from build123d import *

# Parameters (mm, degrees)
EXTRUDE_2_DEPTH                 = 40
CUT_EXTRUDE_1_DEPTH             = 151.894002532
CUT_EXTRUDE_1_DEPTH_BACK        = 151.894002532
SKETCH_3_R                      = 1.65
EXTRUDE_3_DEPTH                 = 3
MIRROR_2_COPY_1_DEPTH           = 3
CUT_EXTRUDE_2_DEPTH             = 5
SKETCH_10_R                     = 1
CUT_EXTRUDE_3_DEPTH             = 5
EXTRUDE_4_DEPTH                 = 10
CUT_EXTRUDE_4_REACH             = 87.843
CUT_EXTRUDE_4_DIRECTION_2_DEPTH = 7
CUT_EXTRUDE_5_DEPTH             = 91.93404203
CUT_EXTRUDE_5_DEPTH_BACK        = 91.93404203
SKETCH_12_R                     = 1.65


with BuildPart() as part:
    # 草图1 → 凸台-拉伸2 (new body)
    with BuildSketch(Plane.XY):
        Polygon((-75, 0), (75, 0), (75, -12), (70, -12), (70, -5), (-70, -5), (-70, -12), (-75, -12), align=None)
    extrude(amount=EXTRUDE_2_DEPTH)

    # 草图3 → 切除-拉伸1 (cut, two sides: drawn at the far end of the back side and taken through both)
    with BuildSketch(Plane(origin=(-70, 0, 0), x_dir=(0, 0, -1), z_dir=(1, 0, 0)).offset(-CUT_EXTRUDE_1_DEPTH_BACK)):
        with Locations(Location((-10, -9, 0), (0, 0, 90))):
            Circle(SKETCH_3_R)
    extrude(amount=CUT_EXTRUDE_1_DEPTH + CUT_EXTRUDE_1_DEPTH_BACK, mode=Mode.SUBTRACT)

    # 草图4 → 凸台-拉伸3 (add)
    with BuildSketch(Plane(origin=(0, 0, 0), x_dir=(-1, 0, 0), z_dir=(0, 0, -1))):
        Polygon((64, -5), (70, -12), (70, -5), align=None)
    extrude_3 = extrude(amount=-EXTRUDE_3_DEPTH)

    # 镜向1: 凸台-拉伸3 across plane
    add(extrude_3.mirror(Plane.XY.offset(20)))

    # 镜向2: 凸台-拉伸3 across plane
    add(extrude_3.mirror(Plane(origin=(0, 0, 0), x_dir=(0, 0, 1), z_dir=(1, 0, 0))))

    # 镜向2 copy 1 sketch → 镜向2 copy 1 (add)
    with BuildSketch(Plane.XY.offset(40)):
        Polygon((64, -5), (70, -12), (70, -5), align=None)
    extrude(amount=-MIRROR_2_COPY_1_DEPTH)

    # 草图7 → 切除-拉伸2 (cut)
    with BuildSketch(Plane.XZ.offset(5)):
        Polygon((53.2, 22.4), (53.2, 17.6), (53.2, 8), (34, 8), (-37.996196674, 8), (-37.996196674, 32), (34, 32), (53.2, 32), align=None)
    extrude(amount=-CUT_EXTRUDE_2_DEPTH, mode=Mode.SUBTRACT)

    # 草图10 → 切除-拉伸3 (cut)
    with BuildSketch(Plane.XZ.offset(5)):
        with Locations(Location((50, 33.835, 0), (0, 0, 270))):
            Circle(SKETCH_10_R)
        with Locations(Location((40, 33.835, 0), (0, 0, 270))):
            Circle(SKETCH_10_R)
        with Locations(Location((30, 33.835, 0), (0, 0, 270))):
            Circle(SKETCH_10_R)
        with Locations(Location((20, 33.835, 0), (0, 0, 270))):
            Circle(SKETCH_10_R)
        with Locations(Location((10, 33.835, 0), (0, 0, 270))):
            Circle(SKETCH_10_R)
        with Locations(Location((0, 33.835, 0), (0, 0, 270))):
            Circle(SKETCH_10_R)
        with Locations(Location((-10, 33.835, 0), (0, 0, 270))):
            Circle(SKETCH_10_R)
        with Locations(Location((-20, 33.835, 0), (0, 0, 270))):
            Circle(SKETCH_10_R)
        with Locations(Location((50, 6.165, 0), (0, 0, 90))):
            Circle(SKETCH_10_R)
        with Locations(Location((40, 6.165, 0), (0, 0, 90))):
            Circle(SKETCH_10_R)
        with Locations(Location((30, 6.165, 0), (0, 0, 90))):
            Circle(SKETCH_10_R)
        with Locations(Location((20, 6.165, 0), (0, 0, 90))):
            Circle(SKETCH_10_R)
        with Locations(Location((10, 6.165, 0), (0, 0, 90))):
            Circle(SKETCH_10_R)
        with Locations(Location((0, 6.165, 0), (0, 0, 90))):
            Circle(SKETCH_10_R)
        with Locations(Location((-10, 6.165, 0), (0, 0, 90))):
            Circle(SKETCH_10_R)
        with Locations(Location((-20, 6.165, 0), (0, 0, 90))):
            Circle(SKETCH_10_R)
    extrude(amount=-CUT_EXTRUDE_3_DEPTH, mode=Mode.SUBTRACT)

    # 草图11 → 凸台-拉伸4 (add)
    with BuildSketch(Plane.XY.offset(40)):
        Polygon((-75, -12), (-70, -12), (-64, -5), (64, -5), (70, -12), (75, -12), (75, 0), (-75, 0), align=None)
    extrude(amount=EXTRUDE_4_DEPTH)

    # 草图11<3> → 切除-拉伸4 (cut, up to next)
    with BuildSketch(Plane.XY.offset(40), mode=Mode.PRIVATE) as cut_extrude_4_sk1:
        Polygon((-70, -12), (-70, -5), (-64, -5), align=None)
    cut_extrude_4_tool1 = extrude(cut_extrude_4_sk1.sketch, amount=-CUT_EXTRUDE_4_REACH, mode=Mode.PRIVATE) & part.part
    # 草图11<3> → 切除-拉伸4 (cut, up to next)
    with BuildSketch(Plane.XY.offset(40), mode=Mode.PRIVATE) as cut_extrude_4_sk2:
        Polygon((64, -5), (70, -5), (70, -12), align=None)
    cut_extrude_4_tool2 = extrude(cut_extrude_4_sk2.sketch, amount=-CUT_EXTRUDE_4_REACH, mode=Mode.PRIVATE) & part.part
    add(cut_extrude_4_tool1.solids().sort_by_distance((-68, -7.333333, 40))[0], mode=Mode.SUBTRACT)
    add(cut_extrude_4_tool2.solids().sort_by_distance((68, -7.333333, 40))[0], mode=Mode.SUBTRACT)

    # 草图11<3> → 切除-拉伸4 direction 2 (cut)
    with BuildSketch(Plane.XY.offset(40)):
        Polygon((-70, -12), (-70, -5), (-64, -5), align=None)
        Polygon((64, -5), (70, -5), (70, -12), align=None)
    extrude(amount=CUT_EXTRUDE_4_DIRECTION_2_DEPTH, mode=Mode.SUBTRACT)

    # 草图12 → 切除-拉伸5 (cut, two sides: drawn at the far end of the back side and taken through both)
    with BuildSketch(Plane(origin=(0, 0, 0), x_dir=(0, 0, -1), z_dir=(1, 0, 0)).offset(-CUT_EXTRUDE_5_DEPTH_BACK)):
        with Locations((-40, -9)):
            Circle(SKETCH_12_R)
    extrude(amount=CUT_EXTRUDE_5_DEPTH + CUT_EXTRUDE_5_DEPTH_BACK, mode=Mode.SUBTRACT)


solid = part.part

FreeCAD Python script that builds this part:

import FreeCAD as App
import Part
import Sketcher
Q = App.Units.Quantity

doc = App.newDocument("Part")
body = doc.addObject("PartDesign::Body", "Body")

# Sketch on XY plane
sketch1 = body.newObject("Sketcher::SketchObject", "Sketch")
sketch1.AttachmentSupport = (doc.getObject("XY_Plane"), [""])
sketch1.MapMode = "FlatFace"
sketch1.addGeometry(Part.LineSegment(App.Vector(75, 0, 0), App.Vector(-75, 0, 0)), False)
sketch1.addGeometry(Part.LineSegment(App.Vector(-75, 0, 0), App.Vector(-75, -12, 0)), False)
sketch1.addGeometry(Part.LineSegment(App.Vector(-75, -12, 0), App.Vector(-70, -12, 0)), False)
sketch1.addGeometry(Part.LineSegment(App.Vector(-70, -12, 0), App.Vector(-70, -5, 0)), False)
sketch1.addGeometry(Part.LineSegment(App.Vector(-70, -5, 0), App.Vector(70, -5, 0)), False)
sketch1.addGeometry(Part.LineSegment(App.Vector(70, -5, 0), App.Vector(70, -12, 0)), False)
sketch1.addGeometry(Part.LineSegment(App.Vector(70, -12, 0), App.Vector(75, -12, 0)), False)
sketch1.addGeometry(Part.LineSegment(App.Vector(75, -12, 0), App.Vector(75, 0, 0)), False)
sketch1.addConstraint(Sketcher.Constraint("Coincident", 0, 2, 1, 1))
sketch1.addConstraint(Sketcher.Constraint("Coincident", 1, 2, 2, 1))
sketch1.addConstraint(Sketcher.Constraint("Coincident", 2, 2, 3, 1))
sketch1.addConstraint(Sketcher.Constraint("Coincident", 3, 2, 4, 1))
sketch1.addConstraint(Sketcher.Constraint("Coincident", 4, 2, 5, 1))
sketch1.addConstraint(Sketcher.Constraint("Coincident", 5, 2, 6, 1))
sketch1.addConstraint(Sketcher.Constraint("Coincident", 6, 2, 7, 1))
sketch1.addConstraint(Sketcher.Constraint("Coincident", 7, 2, 0, 1))
sketch1.addConstraint(Sketcher.Constraint("Horizontal", 0))
sketch1.addConstraint(Sketcher.Constraint("Vertical", 1))
sketch1.addConstraint(Sketcher.Constraint("Horizontal", 2))
sketch1.addConstraint(Sketcher.Constraint("Vertical", 3))
sketch1.addConstraint(Sketcher.Constraint("Horizontal", 4))
sketch1.addConstraint(Sketcher.Constraint("Vertical", 5))
sketch1.addConstraint(Sketcher.Constraint("Horizontal", 6))
sketch1.addConstraint(Sketcher.Constraint("Vertical", 7))
sketch1.addConstraint(Sketcher.Constraint("Symmetric", 0, 2, 7, 2, -1, 1))
sketch1.addConstraint(Sketcher.Constraint("Symmetric", 2, 2, 5, 2, -2))
sketch1.addConstraint(Sketcher.Constraint("DistanceX", 0, 2, 0, 1, Q("150 mm")))
sketch1.addConstraint(Sketcher.Constraint("DistanceX", 2, 1, 2, 2, Q("5 mm")))
sketch1.addConstraint(Sketcher.Constraint("DistanceY", 1, 2, 1, 1, Q("12 mm")))
sketch1.addConstraint(Sketcher.Constraint("DistanceY", 3, 1, 3, 2, Q("7 mm")))
pad1 = body.newObject("PartDesign::Pad", "Pad")
pad1.Profile = sketch1
pad1.Length = 40

# Sketch on YZ plane
sketch2 = body.newObject("Sketcher::SketchObject", "Sketch001")
sketch2.AttachmentSupport = (doc.getObject("YZ_Plane"), [""])
sketch2.MapMode = "FlatFace"
sketch2.AttachmentOffset = App.Placement(App.Vector(0, 0, -70), App.Rotation())
sketch2.addGeometry(Part.Circle(App.Vector(-9, 10, 0), App.Vector(0, 0, 1), 1.6), False)
sketch2.addConstraint(Sketcher.Constraint("Diameter", 0, Q("3.3 mm")))
sketch2.addConstraint(Sketcher.Constraint("DistanceX", 0, 3, -1, 1, Q("9 mm")))
sketch2.addConstraint(Sketcher.Constraint("DistanceY", -1, 1, 0, 3, Q("10 mm")))
pocket1 = body.newObject("PartDesign::Pocket", "Pocket")
pocket1.Profile = sketch2
pocket1.Type = "ThroughAll"
pocket1.Midplane = True

# Sketch on XY plane
sketch3 = body.newObject("Sketcher::SketchObject", "Sketch002")
sketch3.AttachmentSupport = (doc.getObject("XY_Plane"), [""])
sketch3.MapMode = "FlatFace"
sketch3.addGeometry(Part.LineSegment(App.Vector(-64, -5, 0), App.Vector(-70, -12, 0)), False)
sketch3.addGeometry(Part.LineSegment(App.Vector(-70, -12, 0), App.Vector(-70, -5, 0)), False)
sketch3.addGeometry(Part.LineSegment(App.Vector(-70, -5, 0), App.Vector(-64, -5, 0)), False)
sketch3.addConstraint(Sketcher.Constraint("Coincident", 0, 2, 1, 1))
sketch3.addConstraint(Sketcher.Constraint("Coincident", 1, 2, 2, 1))
sketch3.addConstraint(Sketcher.Constraint("Coincident", 2, 2, 0, 1))
sketch3.addConstraint(Sketcher.Constraint("Vertical", 1))
sketch3.addConstraint(Sketcher.Constraint("Horizontal", 2))
sketch3.addConstraint(Sketcher.Constraint("DistanceX", 2, 1, 2, 2, Q("6 mm")))
sketch3.addConstraint(Sketcher.Constraint("DistanceY", 1, 1, 1, 2, Q("7 mm")))
sketch3.addConstraint(Sketcher.Constraint("DistanceX", 0, 2, -1, 1, Q("70 mm")))
sketch3.addConstraint(Sketcher.Constraint("DistanceY", 0, 2, -1, 1, Q("12 mm")))
pad2 = body.newObject("PartDesign::Pad", "Pad001")
pad2.Profile = sketch3
pad2.Length = 3
doc.recompute()

datumplane = body.newObject("PartDesign::Plane", "DatumPlane")
datumplane.AttachmentSupport = (doc.getObject("XY_Plane"), [""])
datumplane.MapMode = "FlatFace"
datumplane.AttachmentOffset = App.Placement(App.Vector(0, 0, 20), App.Rotation())
mirrored = body.newObject("PartDesign::Mirrored", "Mirrored")
mirrored.Originals = [pad2]
mirrored.MirrorPlane = (datumplane, [""])
body.Tip = mirrored
doc.recompute()

mirrored2 = body.newObject("PartDesign::Mirrored", "Mirrored001")
mirrored2.Originals = [pad2]
mirrored2.MirrorPlane = (doc.getObject("YZ_Plane"), [""])
body.Tip = mirrored2

# Sketch on XY plane
sketch4 = body.newObject("Sketcher::SketchObject", "Sketch003")
sketch4.AttachmentSupport = (doc.getObject("XY_Plane"), [""])
sketch4.MapMode = "FlatFace"
sketch4.AttachmentOffset = App.Placement(App.Vector(0, 0, 40), App.Rotation())
sketch4.addGeometry(Part.LineSegment(App.Vector(64, -5, 0), App.Vector(70, -12, 0)), False)
sketch4.addGeometry(Part.LineSegment(App.Vector(70, -12, 0), App.Vector(70, -5, 0)), False)
sketch4.addGeometry(Part.LineSegment(App.Vector(70, -5, 0), App.Vector(64, -5, 0)), False)
sketch4.addConstraint(Sketcher.Constraint("Coincident", 0, 2, 1, 1))
sketch4.addConstraint(Sketcher.Constraint("Coincident", 1, 2, 2, 1))
sketch4.addConstraint(Sketcher.Constraint("Coincident", 2, 2, 0, 1))
sketch4.addConstraint(Sketcher.Constraint("Vertical", 1))
sketch4.addConstraint(Sketcher.Constraint("Horizontal", 2))
sketch4.addConstraint(Sketcher.Constraint("DistanceX", 2, 2, 2, 1, Q("6 mm")))
sketch4.addConstraint(Sketcher.Constraint("DistanceY", 1, 1, 1, 2, Q("7 mm")))
sketch4.addConstraint(Sketcher.Constraint("DistanceX", -1, 1, 0, 2, Q("70 mm")))
sketch4.addConstraint(Sketcher.Constraint("DistanceY", 0, 2, -1, 1, Q("12 mm")))
pad3 = body.newObject("PartDesign::Pad", "Pad002")
pad3.Profile = sketch4
pad3.Length = 3
pad3.Reversed = True

# Sketch on XZ plane
sketch5 = body.newObject("Sketcher::SketchObject", "Sketch004")
sketch5.AttachmentSupport = (doc.getObject("XZ_Plane"), [""])
sketch5.MapMode = "FlatFace"
sketch5.AttachmentOffset = App.Placement(App.Vector(0, 0, 5), App.Rotation())
sketch5.addGeometry(Part.LineSegment(App.Vector(53, 8, 0), App.Vector(53, 32, 0)), False)
sketch5.addGeometry(Part.LineSegment(App.Vector(53, 32, 0), App.Vector(-38, 32, 0)), False)
sketch5.addGeometry(Part.LineSegment(App.Vector(-38, 32, 0), App.Vector(-38, 8, 0)), False)
sketch5.addGeometry(Part.LineSegment(App.Vector(-38, 8, 0), App.Vector(53, 8, 0)), False)
sketch5.addConstraint(Sketcher.Constraint("Coincident", 0, 2, 1, 1))
sketch5.addConstraint(Sketcher.Constraint("Coincident", 1, 2, 2, 1))
sketch5.addConstraint(Sketcher.Constraint("Coincident", 2, 2, 3, 1))
sketch5.addConstraint(Sketcher.Constraint("Coincident", 3, 2, 0, 1))
sketch5.addConstraint(Sketcher.Constraint("Vertical", 0))
sketch5.addConstraint(Sketcher.Constraint("Horizontal", 1))
sketch5.addConstraint(Sketcher.Constraint("Vertical", 2))
sketch5.addConstraint(Sketcher.Constraint("Horizontal", 3))
sketch5.addConstraint(Sketcher.Constraint("DistanceY", 0, 1, 0, 2, Q("24 mm")))
sketch5.addConstraint(Sketcher.Constraint("DistanceY", -1, 1, 0, 2, Q("32 mm")))
sketch5.addConstraint(Sketcher.Constraint("DistanceX", -1, 1, 0, 2, Q("53.2 mm")))
sketch5.addConstraint(Sketcher.Constraint("DistanceX", 1, 2, 1, 1, Q("91.196197 mm")))
pocket2 = body.newObject("PartDesign::Pocket", "Pocket001")
pocket2.Profile = sketch5
pocket2.Length = 5

# Sketch on XZ plane
sketch6 = body.newObject("Sketcher::SketchObject", "Sketch005")
sketch6.AttachmentSupport = (doc.getObject("XZ_Plane"), [""])
sketch6.MapMode = "FlatFace"
sketch6.AttachmentOffset = App.Placement(App.Vector(0, 0, 5), App.Rotation())
sketch6.addGeometry(Part.Circle(App.Vector(50, 33.8, 0), App.Vector(0, 0, 1), 1), False)
sketch6.addGeometry(Part.Circle(App.Vector(40, 33.8, 0), App.Vector(0, 0, 1), 1), False)
sketch6.addGeometry(Part.Circle(App.Vector(30, 33.8, 0), App.Vector(0, 0, 1), 1), False)
sketch6.addGeometry(Part.Circle(App.Vector(20, 33.8, 0), App.Vector(0, 0, 1), 1), False)
sketch6.addGeometry(Part.Circle(App.Vector(10, 33.8, 0), App.Vector(0, 0, 1), 1), False)
sketch6.addGeometry(Part.Circle(App.Vector(0, 33.8, 0), App.Vector(0, 0, 1), 1), False)
sketch6.addGeometry(Part.Circle(App.Vector(-10, 33.8, 0), App.Vector(0, 0, 1), 1), False)
sketch6.addGeometry(Part.Circle(App.Vector(-20, 33.8, 0), App.Vector(0, 0, 1), 1), False)
sketch6.addGeometry(Part.Circle(App.Vector(50, 6.2, 0), App.Vector(0, 0, 1), 1), False)
sketch6.addGeometry(Part.Circle(App.Vector(40, 6.2, 0), App.Vector(0, 0, 1), 1), False)
sketch6.addGeometry(Part.Circle(App.Vector(30, 6.2, 0), App.Vector(0, 0, 1), 1), False)
sketch6.addGeometry(Part.Circle(App.Vector(20, 6.2, 0), App.Vector(0, 0, 1), 1), False)
sketch6.addGeometry(Part.Circle(App.Vector(10, 6.2, 0), App.Vector(0, 0, 1), 1), False)
sketch6.addGeometry(Part.Circle(App.Vector(0, 6.2, 0), App.Vector(0, 0, 1), 1), False)
sketch6.addGeometry(Part.Circle(App.Vector(-10, 6.2, 0), App.Vector(0, 0, 1), 1), False)
sketch6.addGeometry(Part.Circle(App.Vector(-20, 6.2, 0), App.Vector(0, 0, 1), 1), False)
sketch6.addConstraint(Sketcher.Constraint("Equal", 0, 1))
sketch6.addConstraint(Sketcher.Constraint("Equal", 1, 2))
sketch6.addConstraint(Sketcher.Constraint("Equal", 2, 3))
sketch6.addConstraint(Sketcher.Constraint("Equal", 3, 4))
sketch6.addConstraint(Sketcher.Constraint("Equal", 4, 5))
sketch6.addConstraint(Sketcher.Constraint("Equal", 5, 6))
sketch6.addConstraint(Sketcher.Constraint("Equal", 6, 7))
sketch6.addConstraint(Sketcher.Constraint("Equal", 7, 8))
sketch6.addConstraint(Sketcher.Constraint("Equal", 8, 9))
sketch6.addConstraint(Sketcher.Constraint("Equal", 9, 10))
sketch6.addConstraint(Sketcher.Constraint("Equal", 10, 11))
sketch6.addConstraint(Sketcher.Constraint("Equal", 11, 12))
sketch6.addConstraint(Sketcher.Constraint("Equal", 12, 13))
sketch6.addConstraint(Sketcher.Constraint("Equal", 13, 14))
sketch6.addConstraint(Sketcher.Constraint("Equal", 14, 15))
sketch6.addConstraint(Sketcher.Constraint("Symmetric", 4, 3, 6, 3, -2))
sketch6.addConstraint(Sketcher.Constraint("Symmetric", 3, 3, 7, 3, -2))
sketch6.addConstraint(Sketcher.Constraint("Symmetric", 12, 3, 14, 3, -2))
sketch6.addConstraint(Sketcher.Constraint("Symmetric", 11, 3, 15, 3, -2))
sketch6.addConstraint(Sketcher.Constraint("PointOnObject", 5, 3, -2))
sketch6.addConstraint(Sketcher.Constraint("PointOnObject", 13, 3, -2))
sketch6.addConstraint(Sketcher.Constraint("Horizontal", 0, 3, 1, 3))
sketch6.addConstraint(Sketcher.Constraint("Horizontal", 1, 3, 2, 3))
sketch6.addConstraint(Sketcher.Constraint("Horizontal", 2, 3, 3, 3))
sketch6.addConstraint(Sketcher.Constraint("Horizontal", 3, 3, 4, 3))
sketch6.addConstraint(Sketcher.Constraint("Horizontal", 4, 3, 5, 3))
sketch6.addConstraint(Sketcher.Constraint("Horizontal", 8, 3, 9, 3))
sketch6.addConstraint(Sketcher.Constraint("Horizontal", 9, 3, 10, 3))
sketch6.addConstraint(Sketcher.Constraint("Horizontal", 10, 3, 11, 3))
sketch6.addConstraint(Sketcher.Constraint("Horizontal", 11, 3, 12, 3))
sketch6.addConstraint(Sketcher.Constraint("Horizontal", 12, 3, 13, 3))
sketch6.addConstraint(Sketcher.Constraint("Vertical", 0, 3, 8, 3))
sketch6.addConstraint(Sketcher.Constraint("Vertical", 1, 3, 9, 3))
sketch6.addConstraint(Sketcher.Constraint("Vertical", 2, 3, 10, 3))
sketch6.addConstraint(Sketcher.Constraint("Vertical", 3, 3, 11, 3))
sketch6.addConstraint(Sketcher.Constraint("Vertical", 4, 3, 12, 3))
sketch6.addConstraint(Sketcher.Constraint("Diameter", 0, Q("2 mm")))
sketch6.addConstraint(Sketcher.Constraint("DistanceX", -1, 1, 0, 3, Q("50 mm")))
sketch6.addConstraint(Sketcher.Constraint("DistanceX", -1, 1, 1, 3, Q("40 mm")))
sketch6.addConstraint(Sketcher.Constraint("DistanceX", -1, 1, 2, 3, Q("30 mm")))
sketch6.addConstraint(Sketcher.Constraint("DistanceX", -1, 1, 3, 3, Q("20 mm")))
sketch6.addConstraint(Sketcher.Constraint("DistanceX", -1, 1, 4, 3, Q("10 mm")))
sketch6.addConstraint(Sketcher.Constraint("DistanceY", 8, 3, 0, 3, Q("27.67 mm")))
sketch6.addConstraint(Sketcher.Constraint("DistanceY", -1, 1, 0, 3, Q("33.835 mm")))
pocket3 = body.newObject("PartDesign::Pocket", "Pocket002")
pocket3.Profile = sketch6
pocket3.Length = 5

# Sketch on XY plane
sketch7 = body.newObject("Sketcher::SketchObject", "Sketch006")
sketch7.AttachmentSupport = (doc.getObject("XY_Plane"), [""])
sketch7.MapMode = "FlatFace"
sketch7.AttachmentOffset = App.Placement(App.Vector(0, 0, 40), App.Rotation())
sketch7.addGeometry(Part.LineSegment(App.Vector(-75, -12, 0), App.Vector(-70, -12, 0)), False)
sketch7.addGeometry(Part.LineSegment(App.Vector(-70, -12, 0), App.Vector(-64, -5, 0)), False)
sketch7.addGeometry(Part.LineSegment(App.Vector(-64, -5, 0), App.Vector(64, -5, 0)), False)
sketch7.addGeometry(Part.LineSegment(App.Vector(64, -5, 0), App.Vector(70, -12, 0)), False)
sketch7.addGeometry(Part.LineSegment(App.Vector(70, -12, 0), App.Vector(75, -12, 0)), False)
sketch7.addGeometry(Part.LineSegment(App.Vector(75, -12, 0), App.Vector(75, 0, 0)), False)
sketch7.addGeometry(Part.LineSegment(App.Vector(75, 0, 0), App.Vector(-75, 0, 0)), False)
sketch7.addGeometry(Part.LineSegment(App.Vector(-75, 0, 0), App.Vector(-75, -12, 0)), False)
sketch7.addConstraint(Sketcher.Constraint("Coincident", 0, 2, 1, 1))
sketch7.addConstraint(Sketcher.Constraint("Coincident", 1, 2, 2, 1))
sketch7.addConstraint(Sketcher.Constraint("Coincident", 2, 2, 3, 1))
sketch7.addConstraint(Sketcher.Constraint("Coincident", 3, 2, 4, 1))
sketch7.addConstraint(Sketcher.Constraint("Coincident", 4, 2, 5, 1))
sketch7.addConstraint(Sketcher.Constraint("Coincident", 5, 2, 6, 1))
sketch7.addConstraint(Sketcher.Constraint("Coincident", 6, 2, 7, 1))
sketch7.addConstraint(Sketcher.Constraint("Coincident", 7, 2, 0, 1))
sketch7.addConstraint(Sketcher.Constraint("Horizontal", 0))
sketch7.addConstraint(Sketcher.Constraint("Horizontal", 2))
sketch7.addConstraint(Sketcher.Constraint("Horizontal", 4))
sketch7.addConstraint(Sketcher.Constraint("Vertical", 5))
sketch7.addConstraint(Sketcher.Constraint("Horizontal", 6))
sketch7.addConstraint(Sketcher.Constraint("Vertical", 7))
sketch7.addConstraint(Sketcher.Constraint("Symmetric", 5, 2, 6, 2, -1, 1))
sketch7.addConstraint(Sketcher.Constraint("Symmetric", 0, 2, 3, 2, -2))
sketch7.addConstraint(Sketcher.Constraint("Equal", 1, 3))
sketch7.addConstraint(Sketcher.Constraint("DistanceX", 0, 1, 0, 2, Q("5 mm")))
sketch7.addConstraint(Sketcher.Constraint("DistanceX", 2, 1, 2, 2, Q("128 mm")))
sketch7.addConstraint(Sketcher.Constraint("DistanceX", 6, 2, 6, 1, Q("150 mm")))
sketch7.addConstraint(Sketcher.Constraint("DistanceY", 5, 1, 5, 2, Q("12 mm")))
sketch7.addConstraint(Sketcher.Constraint("DistanceY", 1, 2, -1, 1, Q("5 mm")))
pad4 = body.newObject("PartDesign::Pad", "Pad003")
pad4.Profile = sketch7
pad4.Length = 10

# Sketch on XY plane
sketch8 = body.newObject("Sketcher::SketchObject", "Sketch007")
sketch8.AttachmentSupport = (doc.getObject("XY_Plane"), [""])
sketch8.MapMode = "FlatFace"
sketch8.AttachmentOffset = App.Placement(App.Vector(0, 0, 40), App.Rotation())
sketch8.addGeometry(Part.LineSegment(App.Vector(-70, -5, 0), App.Vector(-70, -12, 0)), False)
sketch8.addGeometry(Part.LineSegment(App.Vector(-70, -12, 0), App.Vector(-64, -5, 0)), False)
sketch8.addGeometry(Part.LineSegment(App.Vector(-64, -5, 0), App.Vector(-70, -5, 0)), False)
sketch8.addConstraint(Sketcher.Constraint("Coincident", 0, 2, 1, 1))
sketch8.addConstraint(Sketcher.Constraint("Coincident", 1, 2, 2, 1))
sketch8.addConstraint(Sketcher.Constraint("Coincident", 2, 2, 0, 1))
sketch8.addConstraint(Sketcher.Constraint("Vertical", 0))
sketch8.addConstraint(Sketcher.Constraint("Horizontal", 2))
sketch8.addConstraint(Sketcher.Constraint("DistanceX", 2, 2, 2, 1, Q("6 mm")))
sketch8.addConstraint(Sketcher.Constraint("DistanceY", 0, 2, 0, 1, Q("7 mm")))
sketch8.addConstraint(Sketcher.Constraint("DistanceX", 0, 2, -1, 1, Q("70 mm")))
sketch8.addConstraint(Sketcher.Constraint("DistanceY", 0, 2, -1, 1, Q("12 mm")))
pocket4 = body.newObject("PartDesign::Pocket", "Pocket003")
pocket4.Profile = sketch8
pocket4.Type = "UpToFirst"

# Sketch on XY plane
sketch9 = body.newObject("Sketcher::SketchObject", "Sketch008")
sketch9.AttachmentSupport = (doc.getObject("XY_Plane"), [""])
sketch9.MapMode = "FlatFace"
sketch9.AttachmentOffset = App.Placement(App.Vector(0, 0, 40), App.Rotation())
sketch9.addGeometry(Part.LineSegment(App.Vector(70, -5, 0), App.Vector(64, -5, 0)), False)
sketch9.addGeometry(Part.LineSegment(App.Vector(64, -5, 0), App.Vector(70, -12, 0)), False)
sketch9.addGeometry(Part.LineSegment(App.Vector(70, -12, 0), App.Vector(70, -5, 0)), False)
sketch9.addConstraint(Sketcher.Constraint("Coincident", 0, 2, 1, 1))
sketch9.addConstraint(Sketcher.Constraint("Coincident", 1, 2, 2, 1))
sketch9.addConstraint(Sketcher.Constraint("Coincident", 2, 2, 0, 1))
sketch9.addConstraint(Sketcher.Constraint("Horizontal", 0))
sketch9.addConstraint(Sketcher.Constraint("Vertical", 2))
sketch9.addConstraint(Sketcher.Constraint("DistanceX", 0, 2, 0, 1, Q("6 mm")))
sketch9.addConstraint(Sketcher.Constraint("DistanceY", 2, 1, 2, 2, Q("7 mm")))
sketch9.addConstraint(Sketcher.Constraint("DistanceX", -1, 1, 0, 2, Q("64 mm")))
sketch9.addConstraint(Sketcher.Constraint("DistanceY", 0, 2, -1, 1, Q("5 mm")))
pocket5 = body.newObject("PartDesign::Pocket", "Pocket004")
pocket5.Profile = sketch9
pocket5.Type = "UpToFirst"

# Sketch on XY plane
sketch10 = body.newObject("Sketcher::SketchObject", "Sketch009")
sketch10.AttachmentSupport = (doc.getObject("XY_Plane"), [""])
sketch10.MapMode = "FlatFace"
sketch10.AttachmentOffset = App.Placement(App.Vector(0, 0, 40), App.Rotation())
sketch10.addGeometry(Part.LineSegment(App.Vector(-70, -5, 0), App.Vector(-70, -12, 0)), False)
sketch10.addGeometry(Part.LineSegment(App.Vector(-70, -12, 0), App.Vector(-64, -5, 0)), False)
sketch10.addGeometry(Part.LineSegment(App.Vector(-64, -5, 0), App.Vector(-70, -5, 0)), False)
sketch10.addGeometry(Part.LineSegment(App.Vector(70, -5, 0), App.Vector(64, -5, 0)), False)
sketch10.addGeometry(Part.LineSegment(App.Vector(64, -5, 0), App.Vector(70, -12, 0)), False)
sketch10.addGeometry(Part.LineSegment(App.Vector(70, -12, 0), App.Vector(70, -5, 0)), False)
sketch10.addConstraint(Sketcher.Constraint("Coincident", 0, 2, 1, 1))
sketch10.addConstraint(Sketcher.Constraint("Coincident", 1, 2, 2, 1))
sketch10.addConstraint(Sketcher.Constraint("Coincident", 2, 2, 0, 1))
sketch10.addConstraint(Sketcher.Constraint("Coincident", 3, 2, 4, 1))
sketch10.addConstraint(Sketcher.Constraint("Coincident", 4, 2, 5, 1))
sketch10.addConstraint(Sketcher.Constraint("Coincident", 5, 2, 3, 1))
sketch10.addConstraint(Sketcher.Constraint("Vertical", 0))
sketch10.addConstraint(Sketcher.Constraint("Horizontal", 2))
sketch10.addConstraint(Sketcher.Constraint("Horizontal", 3))
sketch10.addConstraint(Sketcher.Constraint("Vertical", 5))
sketch10.addConstraint(Sketcher.Constraint("Symmetric", 1, 2, 3, 2, -2))
sketch10.addConstraint(Sketcher.Constraint("Symmetric", 0, 2, 4, 2, -2))
sketch10.addConstraint(Sketcher.Constraint("DistanceX", 2, 2, 2, 1, Q("6 mm")))
sketch10.addConstraint(Sketcher.Constraint("DistanceY", 0, 2, 0, 1, Q("7 mm")))
sketch10.addConstraint(Sketcher.Constraint("DistanceX", 0, 2, -1, 1, Q("70 mm")))
sketch10.addConstraint(Sketcher.Constraint("DistanceY", 0, 2, -1, 1, Q("12 mm")))
pocket6 = body.newObject("PartDesign::Pocket", "Pocket005")
pocket6.Profile = sketch10
pocket6.Length = 7
pocket6.Reversed = True

# Sketch on YZ plane
sketch11 = body.newObject("Sketcher::SketchObject", "Sketch010")
sketch11.AttachmentSupport = (doc.getObject("YZ_Plane"), [""])
sketch11.MapMode = "FlatFace"
sketch11.addGeometry(Part.Circle(App.Vector(-9, 40, 0), App.Vector(0, 0, 1), 1.6), False)
sketch11.addConstraint(Sketcher.Constraint("Diameter", 0, Q("3.3 mm")))
sketch11.addConstraint(Sketcher.Constraint("DistanceX", 0, 3, -1, 1, Q("9 mm")))
sketch11.addConstraint(Sketcher.Constraint("DistanceY", -1, 1, 0, 3, Q("40 mm")))
pocket7 = body.newObject("PartDesign::Pocket", "Pocket006")
pocket7.Profile = sketch11
pocket7.Type = "ThroughAll"
pocket7.Midplane = True

doc.recompute()
